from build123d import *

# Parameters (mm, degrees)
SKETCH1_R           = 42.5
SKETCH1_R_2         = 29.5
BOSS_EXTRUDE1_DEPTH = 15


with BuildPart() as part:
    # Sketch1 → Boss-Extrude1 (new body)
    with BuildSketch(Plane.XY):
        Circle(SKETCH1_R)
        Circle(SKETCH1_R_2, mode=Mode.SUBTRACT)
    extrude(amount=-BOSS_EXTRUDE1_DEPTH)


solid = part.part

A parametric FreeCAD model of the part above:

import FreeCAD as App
import Part
import Sketcher

doc = App.newDocument("Part")
body = doc.addObject("PartDesign::Body", "Body")

# Sketch on XY plane
sketch1 = doc.addObject("Sketcher::SketchObject", "Sketch")
body.addObject(sketch1)
sketch1.AttachmentSupport = (doc.XY_Plane, [""])
sketch1.MapMode = "FlatFace"
sketch1.addGeometry([
    Part.Circle(App.Vector(0, 0, 0), App.Vector(0, 0, 1), 42.5),
    Part.Circle(App.Vector(0, 0, 0), App.Vector(0, 0, 1), 29.5),
], False)
sketch1.addConstraint([
    Sketcher.Constraint("Coincident", 0, 3, -1, 1),
    Sketcher.Constraint("Coincident", 1, 3, -1, 1),
    Sketcher.Constraint("Diameter", 0, 85.0),
    Sketcher.Constraint("Diameter", 1, 59.0),
])
pad1 = doc.addObject("PartDesign::Pad", "Pad")
body.addObject(pad1)
pad1.Profile = sketch1
pad1.Length = 15
pad1.Reversed = True

doc.recompute()
